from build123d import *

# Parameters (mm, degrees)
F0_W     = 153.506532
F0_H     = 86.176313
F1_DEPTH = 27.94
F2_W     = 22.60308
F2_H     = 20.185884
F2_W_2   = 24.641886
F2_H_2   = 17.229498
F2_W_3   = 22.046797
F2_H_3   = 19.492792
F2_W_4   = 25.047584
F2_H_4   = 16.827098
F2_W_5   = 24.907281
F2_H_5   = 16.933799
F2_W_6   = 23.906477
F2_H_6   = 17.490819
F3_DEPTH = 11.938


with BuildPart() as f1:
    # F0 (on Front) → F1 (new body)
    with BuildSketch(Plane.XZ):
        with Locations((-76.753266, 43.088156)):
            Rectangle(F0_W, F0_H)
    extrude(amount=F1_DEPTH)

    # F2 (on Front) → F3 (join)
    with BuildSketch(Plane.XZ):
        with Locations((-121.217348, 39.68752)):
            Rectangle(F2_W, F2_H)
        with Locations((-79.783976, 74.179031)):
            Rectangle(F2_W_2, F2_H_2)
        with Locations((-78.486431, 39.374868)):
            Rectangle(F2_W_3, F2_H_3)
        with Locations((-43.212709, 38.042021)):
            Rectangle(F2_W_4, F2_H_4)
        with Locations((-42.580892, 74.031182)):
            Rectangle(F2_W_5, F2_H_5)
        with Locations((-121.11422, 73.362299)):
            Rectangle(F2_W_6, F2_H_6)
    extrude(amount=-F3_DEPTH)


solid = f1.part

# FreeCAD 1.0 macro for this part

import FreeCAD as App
import Part
import Sketcher
from FreeCAD import Vector
Q = App.Units.Quantity


def add_polygon(sketch, points):
    """Adds a closed chain of lines whose ends are joined by coincident constraints."""
    first, n = sketch.GeometryCount, len(points)
    for a, b in zip(points, points[1:] + points[:1]):
        sketch.addGeometry(Part.LineSegment(App.Vector(*a, 0), App.Vector(*b, 0)), False)
    for i in range(n):
        sketch.addConstraint(Sketcher.Constraint("Coincident", first + i, 2, first + (i + 1) % n, 1))

doc = App.newDocument("Part")
params = doc.addObject("Spreadsheet::Sheet", "Params")
for row, (alias, value) in enumerate([
    ("pad1_length", "1.1 in"),
    ("pad2_length", "0.47 in"),
], start=1):
    params.set(f"A{row}", alias)
    params.set(f"B{row}", "=" + value)
    params.setAlias(f"B{row}", alias)

body = doc.addObject("PartDesign::Body", "Body")

# Sketch on XZ plane
sketch1 = body.newObject("Sketcher::SketchObject", "Sketch")
sketch1.AttachmentSupport = (doc.getObject("XZ_Plane"), [""])
sketch1.MapMode = "FlatFace"
add_polygon(sketch1, [(-154, 86), (-154, 0), (0, 0), (0, 86)])  # lines 0-3
sketch1.addConstraint([
    Sketcher.Constraint("Vertical", 0),
    Sketcher.Constraint("Horizontal", 1),
    Sketcher.Constraint("Vertical", 2),
    Sketcher.Constraint("Horizontal", 3),
    Sketcher.Constraint("Coincident", 1, 2, -1, 1),
    Sketcher.Constraint("DistanceX", 1, 1, 1, 2, 153.506532),
    Sketcher.Constraint("DistanceY", 0, 2, 0, 1, 86.176313),
])
pad1 = body.newObject("PartDesign::Pad", "Pad")
pad1.Profile = sketch1
pad1.setExpression("Length", "Params.pad1_length")

# Sketch on XZ plane
sketch2 = body.newObject("Sketcher::SketchObject", "Sketch001")
sketch2.AttachmentSupport = (doc.getObject("XZ_Plane"), [""])
sketch2.MapMode = "FlatFace"
add_polygon(sketch2, [(-133, 50), (-133, 30), (-110, 30), (-110, 50)])  # lines 0-3
add_polygon(sketch2, [(-92, 83), (-92, 66), (-67, 66), (-67, 83)])  # lines 4-7
add_polygon(sketch2, [(-90, 49), (-90, 30), (-67, 30), (-67, 49)])  # lines 8-11
add_polygon(sketch2, [(-56, 46), (-56, 30), (-31, 30), (-31, 46)])  # lines 12-15
add_polygon(sketch2, [(-55, 82), (-55, 66), (-30, 66), (-30, 82)])  # lines 16-19
add_polygon(sketch2, [(-133, 82), (-133, 65), (-109, 65), (-109, 82)])  # lines 20-23
sketch2.addConstraint([
    Sketcher.Constraint("Vertical", 0),
    Sketcher.Constraint("Horizontal", 1),
    Sketcher.Constraint("Vertical", 2),
    Sketcher.Constraint("Horizontal", 3),
    Sketcher.Constraint("Vertical", 4),
    Sketcher.Constraint("Horizontal", 5),
    Sketcher.Constraint("Vertical", 6),
    Sketcher.Constraint("Horizontal", 7),
    Sketcher.Constraint("Vertical", 8),
    Sketcher.Constraint("Horizontal", 9),
    Sketcher.Constraint("Vertical", 10),
    Sketcher.Constraint("Horizontal", 11),
    Sketcher.Constraint("Vertical", 12),
    Sketcher.Constraint("Horizontal", 13),
    Sketcher.Constraint("Vertical", 14),
    Sketcher.Constraint("Horizontal", 15),
    Sketcher.Constraint("Vertical", 16),
    Sketcher.Constraint("Horizontal", 17),
    Sketcher.Constraint("Vertical", 18),
    Sketcher.Constraint("Horizontal", 19),
    Sketcher.Constraint("Vertical", 20),
    Sketcher.Constraint("Horizontal", 21),
    Sketcher.Constraint("Vertical", 22),
    Sketcher.Constraint("Horizontal", 23),
    Sketcher.Constraint("Horizontal", 9, 2, 12, 2),
    Sketcher.Constraint("Horizontal", 5, 2, 16, 2),
    Sketcher.Constraint("Vertical", 6, 2, 9, 2),
    Sketcher.Constraint("DistanceX", 21, 1, 21, 2, Q("0.9411999 in")),
    Sketcher.Constraint("DistanceY", 12, 2, 12, 1, 16.827098),
    Sketcher.Constraint("DistanceY", 16, 2, 16, 1, 16.933799),
    Sketcher.Constraint("DistanceX", 9, 2, 13, 2, Q("1.4477998 in")),
    Sketcher.Constraint("DistanceX", 1, 1, 1, 2, 22.60308),
    Sketcher.Constraint("DistanceX", 17, 1, 17, 2, 24.907281),
    Sketcher.Constraint("DistanceY", 8, 2, 8, 1, 19.492792),
    Sketcher.Constraint("DistanceY", 20, 2, 20, 1, 17.490819),
    Sketcher.Constraint("DistanceX", 12, 2, -1, 1, 55.736501),
    Sketcher.Constraint("DistanceY", 11, 2, 2, 2, 0.659198),
    Sketcher.Constraint("DistanceX", 5, 2, 16, 2, 12.4285),
    Sketcher.Constraint("DistanceY", 18, 2, 6, 2, 0.295699),
    Sketcher.Constraint("DistanceX", 5, 1, 5, 2, 24.641886),
    Sketcher.Constraint("DistanceX", 9, 1, 9, 2, 22.046797),
    Sketcher.Constraint("DistanceX", 13, 1, 13, 2, 25.047584),
    Sketcher.Constraint("DistanceY", 0, 2, 0, 1, 20.185884),
    Sketcher.Constraint("DistanceX", 0, 2, -1, 1, 132.518888),
    Sketcher.Constraint("DistanceY", -1, 1, 6, 2, 82.79378),
    Sketcher.Constraint("DistanceY", -1, 1, 8, 2, 29.628472),
    Sketcher.Constraint("DistanceX", 20, 2, -1, 1, 133.067458),
    Sketcher.Constraint("DistanceY", -1, 1, 20, 2, 64.616889),
])
pad2 = body.newObject("PartDesign::Pad", "Pad001")
pad2.Profile = sketch2
pad2.setExpression("Length", "Params.pad2_length")
pad2.Reversed = True

doc.recompute()
